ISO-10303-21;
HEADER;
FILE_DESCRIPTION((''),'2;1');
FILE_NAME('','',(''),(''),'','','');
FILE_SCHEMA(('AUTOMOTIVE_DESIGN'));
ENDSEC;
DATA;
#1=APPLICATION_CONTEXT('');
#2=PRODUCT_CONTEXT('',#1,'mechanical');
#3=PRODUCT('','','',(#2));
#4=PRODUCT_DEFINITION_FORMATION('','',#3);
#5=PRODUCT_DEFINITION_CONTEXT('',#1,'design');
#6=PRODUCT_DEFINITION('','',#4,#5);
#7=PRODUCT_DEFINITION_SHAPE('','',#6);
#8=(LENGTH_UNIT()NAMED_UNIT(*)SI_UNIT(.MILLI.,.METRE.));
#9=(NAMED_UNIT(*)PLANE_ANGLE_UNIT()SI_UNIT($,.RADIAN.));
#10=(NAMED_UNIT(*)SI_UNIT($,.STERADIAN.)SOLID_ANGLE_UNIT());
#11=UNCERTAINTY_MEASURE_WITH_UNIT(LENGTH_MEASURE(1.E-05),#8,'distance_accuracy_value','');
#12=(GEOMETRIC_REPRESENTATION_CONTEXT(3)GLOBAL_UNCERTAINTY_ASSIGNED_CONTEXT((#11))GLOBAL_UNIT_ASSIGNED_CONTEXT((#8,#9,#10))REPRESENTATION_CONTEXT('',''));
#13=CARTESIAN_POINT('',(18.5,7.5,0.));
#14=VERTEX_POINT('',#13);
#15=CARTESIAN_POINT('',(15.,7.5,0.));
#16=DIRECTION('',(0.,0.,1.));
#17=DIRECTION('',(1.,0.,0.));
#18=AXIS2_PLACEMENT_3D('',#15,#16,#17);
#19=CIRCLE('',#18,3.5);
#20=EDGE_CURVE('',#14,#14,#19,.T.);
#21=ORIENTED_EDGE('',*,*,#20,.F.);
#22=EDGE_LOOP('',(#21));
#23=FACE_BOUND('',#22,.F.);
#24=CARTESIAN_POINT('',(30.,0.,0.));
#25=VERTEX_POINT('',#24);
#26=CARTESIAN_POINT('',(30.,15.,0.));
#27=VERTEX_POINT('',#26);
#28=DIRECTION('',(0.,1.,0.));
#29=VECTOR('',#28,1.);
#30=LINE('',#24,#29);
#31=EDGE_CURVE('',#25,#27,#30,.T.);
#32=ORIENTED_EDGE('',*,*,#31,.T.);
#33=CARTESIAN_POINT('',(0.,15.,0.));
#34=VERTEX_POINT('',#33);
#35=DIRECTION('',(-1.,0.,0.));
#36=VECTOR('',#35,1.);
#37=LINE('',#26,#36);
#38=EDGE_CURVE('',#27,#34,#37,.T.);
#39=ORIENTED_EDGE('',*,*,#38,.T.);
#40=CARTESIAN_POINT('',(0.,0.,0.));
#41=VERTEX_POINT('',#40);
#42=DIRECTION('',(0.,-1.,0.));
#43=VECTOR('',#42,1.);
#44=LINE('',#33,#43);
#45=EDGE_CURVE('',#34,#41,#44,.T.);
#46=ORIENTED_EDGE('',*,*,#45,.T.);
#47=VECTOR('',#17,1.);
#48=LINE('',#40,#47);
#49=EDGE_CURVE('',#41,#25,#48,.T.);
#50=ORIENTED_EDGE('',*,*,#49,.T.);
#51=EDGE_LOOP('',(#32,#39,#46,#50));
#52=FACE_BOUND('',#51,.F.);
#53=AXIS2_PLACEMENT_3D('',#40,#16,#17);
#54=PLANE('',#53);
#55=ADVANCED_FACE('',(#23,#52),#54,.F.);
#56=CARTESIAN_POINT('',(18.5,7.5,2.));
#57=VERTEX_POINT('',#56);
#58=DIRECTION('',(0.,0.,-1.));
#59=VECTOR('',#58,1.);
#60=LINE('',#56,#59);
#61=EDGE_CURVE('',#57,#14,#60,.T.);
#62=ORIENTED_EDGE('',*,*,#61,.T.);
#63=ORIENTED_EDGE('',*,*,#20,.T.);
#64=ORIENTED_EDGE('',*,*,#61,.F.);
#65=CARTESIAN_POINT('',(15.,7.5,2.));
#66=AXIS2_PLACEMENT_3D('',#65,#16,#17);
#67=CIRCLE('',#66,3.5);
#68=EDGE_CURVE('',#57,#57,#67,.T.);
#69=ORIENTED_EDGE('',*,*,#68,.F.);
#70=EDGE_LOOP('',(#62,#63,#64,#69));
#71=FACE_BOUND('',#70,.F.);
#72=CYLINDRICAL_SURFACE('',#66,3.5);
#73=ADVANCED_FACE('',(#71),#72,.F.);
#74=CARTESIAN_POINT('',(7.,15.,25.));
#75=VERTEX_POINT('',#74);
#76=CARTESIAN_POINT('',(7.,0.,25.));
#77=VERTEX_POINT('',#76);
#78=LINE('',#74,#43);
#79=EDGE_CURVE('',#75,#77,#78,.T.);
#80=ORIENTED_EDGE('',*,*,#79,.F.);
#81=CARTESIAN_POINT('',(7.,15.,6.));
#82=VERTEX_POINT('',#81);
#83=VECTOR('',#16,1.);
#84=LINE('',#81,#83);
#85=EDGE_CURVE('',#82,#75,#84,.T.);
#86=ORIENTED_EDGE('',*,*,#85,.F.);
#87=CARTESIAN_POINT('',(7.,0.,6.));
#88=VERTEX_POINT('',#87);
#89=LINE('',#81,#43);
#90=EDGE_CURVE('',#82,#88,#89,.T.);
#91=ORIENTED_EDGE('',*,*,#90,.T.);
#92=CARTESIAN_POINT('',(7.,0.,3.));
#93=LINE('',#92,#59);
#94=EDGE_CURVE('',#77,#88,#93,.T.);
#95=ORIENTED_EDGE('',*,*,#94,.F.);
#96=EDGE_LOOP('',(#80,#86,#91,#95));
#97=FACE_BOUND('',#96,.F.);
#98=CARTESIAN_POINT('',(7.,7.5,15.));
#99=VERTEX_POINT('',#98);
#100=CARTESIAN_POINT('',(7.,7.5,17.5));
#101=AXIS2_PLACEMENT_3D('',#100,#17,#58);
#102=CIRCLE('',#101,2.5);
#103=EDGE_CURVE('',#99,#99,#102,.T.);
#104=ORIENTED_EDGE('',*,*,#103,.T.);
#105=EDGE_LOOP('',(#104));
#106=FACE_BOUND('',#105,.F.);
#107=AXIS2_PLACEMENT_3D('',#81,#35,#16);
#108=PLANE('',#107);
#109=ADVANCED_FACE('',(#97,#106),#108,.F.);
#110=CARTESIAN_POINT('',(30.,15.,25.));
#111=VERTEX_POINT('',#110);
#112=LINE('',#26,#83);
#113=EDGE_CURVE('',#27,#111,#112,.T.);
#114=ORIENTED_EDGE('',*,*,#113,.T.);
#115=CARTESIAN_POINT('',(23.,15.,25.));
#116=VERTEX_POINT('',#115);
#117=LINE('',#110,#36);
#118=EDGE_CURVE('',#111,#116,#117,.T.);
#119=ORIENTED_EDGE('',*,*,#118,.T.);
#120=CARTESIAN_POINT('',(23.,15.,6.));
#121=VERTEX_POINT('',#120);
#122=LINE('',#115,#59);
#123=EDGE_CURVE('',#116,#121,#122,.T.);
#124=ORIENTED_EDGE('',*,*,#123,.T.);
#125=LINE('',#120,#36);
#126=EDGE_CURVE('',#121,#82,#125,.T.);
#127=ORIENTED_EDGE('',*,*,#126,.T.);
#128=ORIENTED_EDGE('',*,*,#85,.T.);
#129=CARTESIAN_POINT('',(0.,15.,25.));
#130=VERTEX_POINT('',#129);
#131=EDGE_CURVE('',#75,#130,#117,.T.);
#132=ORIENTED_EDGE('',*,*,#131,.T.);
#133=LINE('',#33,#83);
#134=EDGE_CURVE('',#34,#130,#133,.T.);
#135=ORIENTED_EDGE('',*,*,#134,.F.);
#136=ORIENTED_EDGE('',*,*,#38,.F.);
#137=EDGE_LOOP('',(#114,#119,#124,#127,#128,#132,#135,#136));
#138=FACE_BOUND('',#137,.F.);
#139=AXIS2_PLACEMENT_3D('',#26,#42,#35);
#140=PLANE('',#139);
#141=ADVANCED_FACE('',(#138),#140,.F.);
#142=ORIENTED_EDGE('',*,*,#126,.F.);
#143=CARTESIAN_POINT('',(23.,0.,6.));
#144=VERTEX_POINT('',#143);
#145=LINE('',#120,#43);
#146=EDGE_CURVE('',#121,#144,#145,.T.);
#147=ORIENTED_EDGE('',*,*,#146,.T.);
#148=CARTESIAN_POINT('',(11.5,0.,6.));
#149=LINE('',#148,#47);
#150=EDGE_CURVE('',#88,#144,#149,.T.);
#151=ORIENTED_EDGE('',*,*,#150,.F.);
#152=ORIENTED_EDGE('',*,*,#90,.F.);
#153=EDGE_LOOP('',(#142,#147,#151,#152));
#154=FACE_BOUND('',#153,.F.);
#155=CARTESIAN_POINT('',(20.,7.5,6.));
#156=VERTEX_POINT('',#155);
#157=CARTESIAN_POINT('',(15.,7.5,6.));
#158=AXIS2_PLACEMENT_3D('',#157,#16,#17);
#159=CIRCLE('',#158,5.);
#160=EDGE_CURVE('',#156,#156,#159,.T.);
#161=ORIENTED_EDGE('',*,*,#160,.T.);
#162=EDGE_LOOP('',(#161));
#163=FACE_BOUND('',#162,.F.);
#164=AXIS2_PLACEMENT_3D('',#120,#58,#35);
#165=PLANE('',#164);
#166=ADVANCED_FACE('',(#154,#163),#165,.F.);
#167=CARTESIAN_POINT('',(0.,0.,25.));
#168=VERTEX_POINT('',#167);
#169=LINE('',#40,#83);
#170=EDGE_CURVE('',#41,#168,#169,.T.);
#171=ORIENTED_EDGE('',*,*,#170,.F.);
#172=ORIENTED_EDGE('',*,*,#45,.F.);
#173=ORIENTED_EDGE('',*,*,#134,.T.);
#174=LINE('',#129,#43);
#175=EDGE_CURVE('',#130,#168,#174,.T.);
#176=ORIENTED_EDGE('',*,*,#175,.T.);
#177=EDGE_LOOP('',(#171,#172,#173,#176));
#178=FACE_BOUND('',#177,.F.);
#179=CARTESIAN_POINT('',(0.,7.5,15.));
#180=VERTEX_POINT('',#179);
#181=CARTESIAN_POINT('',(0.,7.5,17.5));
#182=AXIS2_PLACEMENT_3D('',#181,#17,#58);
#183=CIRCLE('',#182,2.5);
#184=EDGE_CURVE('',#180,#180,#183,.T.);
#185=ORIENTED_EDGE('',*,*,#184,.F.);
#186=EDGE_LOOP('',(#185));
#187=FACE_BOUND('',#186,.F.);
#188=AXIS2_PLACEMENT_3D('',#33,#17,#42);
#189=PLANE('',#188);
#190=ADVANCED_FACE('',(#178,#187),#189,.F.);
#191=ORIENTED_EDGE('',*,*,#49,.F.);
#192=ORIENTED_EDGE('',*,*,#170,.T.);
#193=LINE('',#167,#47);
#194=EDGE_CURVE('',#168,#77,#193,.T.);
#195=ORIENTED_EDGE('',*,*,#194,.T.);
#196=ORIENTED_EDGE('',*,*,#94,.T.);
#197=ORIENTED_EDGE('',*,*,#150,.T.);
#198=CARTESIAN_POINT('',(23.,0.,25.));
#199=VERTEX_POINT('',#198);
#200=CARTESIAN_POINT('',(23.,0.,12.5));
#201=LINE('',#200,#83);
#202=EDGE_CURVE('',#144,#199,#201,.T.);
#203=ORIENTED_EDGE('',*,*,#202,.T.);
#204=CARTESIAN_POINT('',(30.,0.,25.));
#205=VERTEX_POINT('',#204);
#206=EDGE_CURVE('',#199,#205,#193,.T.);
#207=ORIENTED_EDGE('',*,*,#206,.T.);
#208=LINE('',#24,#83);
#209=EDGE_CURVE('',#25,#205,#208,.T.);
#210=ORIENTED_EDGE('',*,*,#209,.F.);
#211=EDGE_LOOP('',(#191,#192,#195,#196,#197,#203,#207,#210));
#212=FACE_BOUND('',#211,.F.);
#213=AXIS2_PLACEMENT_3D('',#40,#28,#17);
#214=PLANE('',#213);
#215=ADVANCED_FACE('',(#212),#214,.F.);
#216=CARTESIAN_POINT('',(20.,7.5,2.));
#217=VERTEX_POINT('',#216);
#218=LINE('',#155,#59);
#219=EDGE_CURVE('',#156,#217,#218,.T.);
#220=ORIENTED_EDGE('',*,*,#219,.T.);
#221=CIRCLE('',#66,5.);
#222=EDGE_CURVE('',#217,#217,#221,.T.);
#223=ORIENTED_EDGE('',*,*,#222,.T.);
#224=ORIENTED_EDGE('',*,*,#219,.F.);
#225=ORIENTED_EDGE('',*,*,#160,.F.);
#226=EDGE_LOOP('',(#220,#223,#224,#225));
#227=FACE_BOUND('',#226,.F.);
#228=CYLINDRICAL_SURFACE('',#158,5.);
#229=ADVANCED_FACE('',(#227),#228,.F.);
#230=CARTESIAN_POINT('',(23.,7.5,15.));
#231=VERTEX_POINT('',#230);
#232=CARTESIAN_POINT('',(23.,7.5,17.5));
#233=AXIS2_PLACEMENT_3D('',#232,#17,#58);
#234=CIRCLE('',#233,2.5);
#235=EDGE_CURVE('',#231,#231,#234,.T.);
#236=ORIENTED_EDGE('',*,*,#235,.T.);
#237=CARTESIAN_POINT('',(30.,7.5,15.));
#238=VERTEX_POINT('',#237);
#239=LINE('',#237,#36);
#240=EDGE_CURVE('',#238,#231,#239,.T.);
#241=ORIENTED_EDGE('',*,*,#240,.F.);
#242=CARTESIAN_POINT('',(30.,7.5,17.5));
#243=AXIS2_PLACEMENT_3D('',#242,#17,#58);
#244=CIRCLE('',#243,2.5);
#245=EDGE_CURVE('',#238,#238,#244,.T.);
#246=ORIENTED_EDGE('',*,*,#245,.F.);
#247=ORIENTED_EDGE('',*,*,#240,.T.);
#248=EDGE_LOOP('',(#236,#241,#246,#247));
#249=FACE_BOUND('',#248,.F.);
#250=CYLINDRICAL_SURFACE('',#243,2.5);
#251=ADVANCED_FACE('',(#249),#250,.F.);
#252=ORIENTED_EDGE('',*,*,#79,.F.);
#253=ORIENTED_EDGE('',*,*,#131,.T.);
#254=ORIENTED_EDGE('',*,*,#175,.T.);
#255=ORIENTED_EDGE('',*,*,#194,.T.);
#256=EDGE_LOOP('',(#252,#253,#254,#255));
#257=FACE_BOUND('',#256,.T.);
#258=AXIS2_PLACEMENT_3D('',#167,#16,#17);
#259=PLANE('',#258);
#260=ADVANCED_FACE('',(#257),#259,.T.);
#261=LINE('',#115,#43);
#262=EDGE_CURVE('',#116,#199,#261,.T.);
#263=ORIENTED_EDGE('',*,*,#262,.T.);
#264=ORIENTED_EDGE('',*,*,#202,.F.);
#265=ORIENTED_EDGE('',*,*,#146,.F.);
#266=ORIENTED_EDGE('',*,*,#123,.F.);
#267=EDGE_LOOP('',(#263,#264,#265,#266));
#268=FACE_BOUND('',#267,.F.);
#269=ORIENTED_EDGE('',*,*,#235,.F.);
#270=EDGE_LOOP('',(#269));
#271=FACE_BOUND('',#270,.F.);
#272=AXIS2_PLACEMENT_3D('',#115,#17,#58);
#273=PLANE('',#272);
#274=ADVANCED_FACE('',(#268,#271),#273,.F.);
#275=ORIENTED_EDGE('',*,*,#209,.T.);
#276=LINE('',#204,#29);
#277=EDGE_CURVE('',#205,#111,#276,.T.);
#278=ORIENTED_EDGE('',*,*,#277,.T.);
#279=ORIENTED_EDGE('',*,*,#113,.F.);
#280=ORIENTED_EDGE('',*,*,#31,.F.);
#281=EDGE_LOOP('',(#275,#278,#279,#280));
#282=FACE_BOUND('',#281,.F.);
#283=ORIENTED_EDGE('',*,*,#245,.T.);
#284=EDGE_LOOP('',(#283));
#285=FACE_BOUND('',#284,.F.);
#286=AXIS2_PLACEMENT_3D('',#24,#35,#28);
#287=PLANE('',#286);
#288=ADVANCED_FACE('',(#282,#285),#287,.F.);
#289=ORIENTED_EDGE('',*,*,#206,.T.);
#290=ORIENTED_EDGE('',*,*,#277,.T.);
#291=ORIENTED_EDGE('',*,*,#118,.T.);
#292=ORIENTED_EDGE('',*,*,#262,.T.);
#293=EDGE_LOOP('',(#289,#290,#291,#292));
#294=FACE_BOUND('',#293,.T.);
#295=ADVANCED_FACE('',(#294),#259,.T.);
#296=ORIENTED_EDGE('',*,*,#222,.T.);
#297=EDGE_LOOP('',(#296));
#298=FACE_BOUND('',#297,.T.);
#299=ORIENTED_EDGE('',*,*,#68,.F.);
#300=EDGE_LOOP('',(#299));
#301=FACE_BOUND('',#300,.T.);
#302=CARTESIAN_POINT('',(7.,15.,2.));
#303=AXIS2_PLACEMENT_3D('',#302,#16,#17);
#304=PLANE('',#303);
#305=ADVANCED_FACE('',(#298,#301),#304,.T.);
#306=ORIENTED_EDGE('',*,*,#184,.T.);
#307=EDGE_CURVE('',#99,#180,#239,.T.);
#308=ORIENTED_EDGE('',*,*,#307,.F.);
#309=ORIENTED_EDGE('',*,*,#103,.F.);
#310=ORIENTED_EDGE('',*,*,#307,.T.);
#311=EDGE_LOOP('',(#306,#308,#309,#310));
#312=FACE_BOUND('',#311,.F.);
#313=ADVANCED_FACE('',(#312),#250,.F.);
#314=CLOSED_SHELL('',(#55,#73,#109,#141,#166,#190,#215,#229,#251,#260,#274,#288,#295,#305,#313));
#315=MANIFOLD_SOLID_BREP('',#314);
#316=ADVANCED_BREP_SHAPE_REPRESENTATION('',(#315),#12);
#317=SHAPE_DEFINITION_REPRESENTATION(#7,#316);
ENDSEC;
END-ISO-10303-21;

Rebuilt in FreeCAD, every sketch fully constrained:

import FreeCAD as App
import Part
import Sketcher
from FreeCAD import Vector
Q = App.Units.Quantity

doc = App.newDocument("Part")
body = doc.addObject("PartDesign::Body", "Body")

# Sketch on XY plane
sketch1 = body.newObject("Sketcher::SketchObject", "Sketch")
sketch1.AttachmentSupport = (doc.getObject("XY_Plane"), [""])
sketch1.MapMode = "FlatFace"
sketch1.addGeometry(Part.LineSegment(Vector(0, 15, 0), Vector(0, 0, 0)), False)
sketch1.addGeometry(Part.LineSegment(Vector(0, 0, 0), Vector(30, 0, 0)), False)
sketch1.addGeometry(Part.LineSegment(Vector(30, 0, 0), Vector(30, 15, 0)), False)
sketch1.addGeometry(Part.LineSegment(Vector(30, 15, 0), Vector(0, 15, 0)), False)
sketch1.addConstraint(Sketcher.Constraint("Coincident", 0, 2, 1, 1))
sketch1.addConstraint(Sketcher.Constraint("Coincident", 1, 2, 2, 1))
sketch1.addConstraint(Sketcher.Constraint("Coincident", 2, 2, 3, 1))
sketch1.addConstraint(Sketcher.Constraint("Coincident", 3, 2, 0, 1))
sketch1.addConstraint(Sketcher.Constraint("Vertical", 0))
sketch1.addConstraint(Sketcher.Constraint("Horizontal", 1))
sketch1.addConstraint(Sketcher.Constraint("Vertical", 2))
sketch1.addConstraint(Sketcher.Constraint("Horizontal", 3))
sketch1.addConstraint(Sketcher.Constraint("Coincident", 0, 2, -1, 1))
sketch1.addConstraint(Sketcher.Constraint("DistanceX", 1, 1, 1, 2, Q("30 mm")))
sketch1.addConstraint(Sketcher.Constraint("DistanceY", 0, 2, 0, 1, Q("15 mm")))
pad1 = body.newObject("PartDesign::Pad", "Pad")
pad1.Profile = sketch1
pad1.Length = 25

# Sketch on XZ plane
sketch2 = body.newObject("Sketcher::SketchObject", "Sketch001")
sketch2.AttachmentSupport = (doc.getObject("XZ_Plane"), [""])
sketch2.MapMode = "FlatFace"
sketch2.AttachmentOffset = App.Placement(Vector(0, 0, -15), App.Rotation())
sketch2.addGeometry(Part.LineSegment(Vector(7, 25, 0), Vector(23, 25, 0)), False)
sketch2.addGeometry(Part.LineSegment(Vector(23, 25, 0), Vector(23, 6, 0)), False)
sketch2.addGeometry(Part.LineSegment(Vector(23, 6, 0), Vector(7, 6, 0)), False)
sketch2.addGeometry(Part.LineSegment(Vector(7, 6, 0), Vector(7, 25, 0)), False)
sketch2.addConstraint(Sketcher.Constraint("Coincident", 0, 2, 1, 1))
sketch2.addConstraint(Sketcher.Constraint("Coincident", 1, 2, 2, 1))
sketch2.addConstraint(Sketcher.Constraint("Coincident", 2, 2, 3, 1))
sketch2.addConstraint(Sketcher.Constraint("Coincident", 3, 2, 0, 1))
sketch2.addConstraint(Sketcher.Constraint("Horizontal", 0))
sketch2.addConstraint(Sketcher.Constraint("Vertical", 1))
sketch2.addConstraint(Sketcher.Constraint("Horizontal", 2))
sketch2.addConstraint(Sketcher.Constraint("Vertical", 3))
sketch2.addConstraint(Sketcher.Constraint("DistanceX", 0, 1, 0, 2, Q("16 mm")))
sketch2.addConstraint(Sketcher.Constraint("DistanceY", -1, 1, 1, 2, Q("6 mm")))
sketch2.addConstraint(Sketcher.Constraint("DistanceX", -1, 1, 2, 2, Q("7 mm")))
sketch2.addConstraint(Sketcher.Constraint("DistanceY", 1, 2, 1, 1, Q("19 mm")))
pocket1 = body.newObject("PartDesign::Pocket", "Pocket")
pocket1.Profile = sketch2
pocket1.Type = "UpToFirst"
pocket1.Reversed = True

# Sketch on YZ plane
sketch3 = body.newObject("Sketcher::SketchObject", "Sketch002")
sketch3.AttachmentSupport = (doc.getObject("YZ_Plane"), [""])
sketch3.MapMode = "FlatFace"
sketch3.AttachmentOffset = App.Placement(Vector(0, 0, 30), App.Rotation())
sketch3.addGeometry(Part.Circle(Vector(7.5, 17.5, 0), Vector(0, 0, 1), 2.5), False)
sketch3.addConstraint(Sketcher.Constraint("Diameter", 0, Q("5 mm")))
sketch3.addConstraint(Sketcher.Constraint("DistanceX", -1, 1, 0, 3, Q("7.5 mm")))
sketch3.addConstraint(Sketcher.Constraint("DistanceY", -1, 1, 0, 3, Q("17.5 mm")))
pocket2 = body.newObject("PartDesign::Pocket", "Pocket001")
pocket2.Profile = sketch3
pocket2.Type = "ThroughAll"

# Sketch on XY plane
sketch4 = body.newObject("Sketcher::SketchObject", "Sketch003")
sketch4.AttachmentSupport = (doc.getObject("XY_Plane"), [""])
sketch4.MapMode = "FlatFace"
sketch4.AttachmentOffset = App.Placement(Vector(0, 0, 6), App.Rotation())
sketch4.addGeometry(Part.Circle(Vector(15, 7.5, 0), Vector(0, 0, 1), 5), False)
sketch4.addConstraint(Sketcher.Constraint("Diameter", 0, Q("10 mm")))
sketch4.addConstraint(Sketcher.Constraint("DistanceY", -1, 1, 0, 3, Q("7.5 mm")))
sketch4.addConstraint(Sketcher.Constraint("DistanceX", -1, 1, 0, 3, Q("15 mm")))
pocket3 = body.newObject("PartDesign::Pocket", "Pocket002")
pocket3.Profile = sketch4
pocket3.Length = 4

# Sketch on XY plane
sketch5 = body.newObject("Sketcher::SketchObject", "Sketch004")
sketch5.AttachmentSupport = (doc.getObject("XY_Plane"), [""])
sketch5.MapMode = "FlatFace"
sketch5.AttachmentOffset = App.Placement(Vector(0, 0, 2), App.Rotation())
sketch5.addGeometry(Part.Circle(Vector(15, 7.5, 0), Vector(0, 0, 1), 3.5), False)
sketch5.addConstraint(Sketcher.Constraint("Diameter", 0, Q("7 mm")))
sketch5.addConstraint(Sketcher.Constraint("DistanceX", -1, 1, 0, 3, Q("15 mm")))
sketch5.addConstraint(Sketcher.Constraint("DistanceY", -1, 1, 0, 3, Q("7.5 mm")))
pocket4 = body.newObject("PartDesign::Pocket", "Pocket003")
pocket4.Profile = sketch5
pocket4.Type = "UpToFirst"

doc.recompute()
